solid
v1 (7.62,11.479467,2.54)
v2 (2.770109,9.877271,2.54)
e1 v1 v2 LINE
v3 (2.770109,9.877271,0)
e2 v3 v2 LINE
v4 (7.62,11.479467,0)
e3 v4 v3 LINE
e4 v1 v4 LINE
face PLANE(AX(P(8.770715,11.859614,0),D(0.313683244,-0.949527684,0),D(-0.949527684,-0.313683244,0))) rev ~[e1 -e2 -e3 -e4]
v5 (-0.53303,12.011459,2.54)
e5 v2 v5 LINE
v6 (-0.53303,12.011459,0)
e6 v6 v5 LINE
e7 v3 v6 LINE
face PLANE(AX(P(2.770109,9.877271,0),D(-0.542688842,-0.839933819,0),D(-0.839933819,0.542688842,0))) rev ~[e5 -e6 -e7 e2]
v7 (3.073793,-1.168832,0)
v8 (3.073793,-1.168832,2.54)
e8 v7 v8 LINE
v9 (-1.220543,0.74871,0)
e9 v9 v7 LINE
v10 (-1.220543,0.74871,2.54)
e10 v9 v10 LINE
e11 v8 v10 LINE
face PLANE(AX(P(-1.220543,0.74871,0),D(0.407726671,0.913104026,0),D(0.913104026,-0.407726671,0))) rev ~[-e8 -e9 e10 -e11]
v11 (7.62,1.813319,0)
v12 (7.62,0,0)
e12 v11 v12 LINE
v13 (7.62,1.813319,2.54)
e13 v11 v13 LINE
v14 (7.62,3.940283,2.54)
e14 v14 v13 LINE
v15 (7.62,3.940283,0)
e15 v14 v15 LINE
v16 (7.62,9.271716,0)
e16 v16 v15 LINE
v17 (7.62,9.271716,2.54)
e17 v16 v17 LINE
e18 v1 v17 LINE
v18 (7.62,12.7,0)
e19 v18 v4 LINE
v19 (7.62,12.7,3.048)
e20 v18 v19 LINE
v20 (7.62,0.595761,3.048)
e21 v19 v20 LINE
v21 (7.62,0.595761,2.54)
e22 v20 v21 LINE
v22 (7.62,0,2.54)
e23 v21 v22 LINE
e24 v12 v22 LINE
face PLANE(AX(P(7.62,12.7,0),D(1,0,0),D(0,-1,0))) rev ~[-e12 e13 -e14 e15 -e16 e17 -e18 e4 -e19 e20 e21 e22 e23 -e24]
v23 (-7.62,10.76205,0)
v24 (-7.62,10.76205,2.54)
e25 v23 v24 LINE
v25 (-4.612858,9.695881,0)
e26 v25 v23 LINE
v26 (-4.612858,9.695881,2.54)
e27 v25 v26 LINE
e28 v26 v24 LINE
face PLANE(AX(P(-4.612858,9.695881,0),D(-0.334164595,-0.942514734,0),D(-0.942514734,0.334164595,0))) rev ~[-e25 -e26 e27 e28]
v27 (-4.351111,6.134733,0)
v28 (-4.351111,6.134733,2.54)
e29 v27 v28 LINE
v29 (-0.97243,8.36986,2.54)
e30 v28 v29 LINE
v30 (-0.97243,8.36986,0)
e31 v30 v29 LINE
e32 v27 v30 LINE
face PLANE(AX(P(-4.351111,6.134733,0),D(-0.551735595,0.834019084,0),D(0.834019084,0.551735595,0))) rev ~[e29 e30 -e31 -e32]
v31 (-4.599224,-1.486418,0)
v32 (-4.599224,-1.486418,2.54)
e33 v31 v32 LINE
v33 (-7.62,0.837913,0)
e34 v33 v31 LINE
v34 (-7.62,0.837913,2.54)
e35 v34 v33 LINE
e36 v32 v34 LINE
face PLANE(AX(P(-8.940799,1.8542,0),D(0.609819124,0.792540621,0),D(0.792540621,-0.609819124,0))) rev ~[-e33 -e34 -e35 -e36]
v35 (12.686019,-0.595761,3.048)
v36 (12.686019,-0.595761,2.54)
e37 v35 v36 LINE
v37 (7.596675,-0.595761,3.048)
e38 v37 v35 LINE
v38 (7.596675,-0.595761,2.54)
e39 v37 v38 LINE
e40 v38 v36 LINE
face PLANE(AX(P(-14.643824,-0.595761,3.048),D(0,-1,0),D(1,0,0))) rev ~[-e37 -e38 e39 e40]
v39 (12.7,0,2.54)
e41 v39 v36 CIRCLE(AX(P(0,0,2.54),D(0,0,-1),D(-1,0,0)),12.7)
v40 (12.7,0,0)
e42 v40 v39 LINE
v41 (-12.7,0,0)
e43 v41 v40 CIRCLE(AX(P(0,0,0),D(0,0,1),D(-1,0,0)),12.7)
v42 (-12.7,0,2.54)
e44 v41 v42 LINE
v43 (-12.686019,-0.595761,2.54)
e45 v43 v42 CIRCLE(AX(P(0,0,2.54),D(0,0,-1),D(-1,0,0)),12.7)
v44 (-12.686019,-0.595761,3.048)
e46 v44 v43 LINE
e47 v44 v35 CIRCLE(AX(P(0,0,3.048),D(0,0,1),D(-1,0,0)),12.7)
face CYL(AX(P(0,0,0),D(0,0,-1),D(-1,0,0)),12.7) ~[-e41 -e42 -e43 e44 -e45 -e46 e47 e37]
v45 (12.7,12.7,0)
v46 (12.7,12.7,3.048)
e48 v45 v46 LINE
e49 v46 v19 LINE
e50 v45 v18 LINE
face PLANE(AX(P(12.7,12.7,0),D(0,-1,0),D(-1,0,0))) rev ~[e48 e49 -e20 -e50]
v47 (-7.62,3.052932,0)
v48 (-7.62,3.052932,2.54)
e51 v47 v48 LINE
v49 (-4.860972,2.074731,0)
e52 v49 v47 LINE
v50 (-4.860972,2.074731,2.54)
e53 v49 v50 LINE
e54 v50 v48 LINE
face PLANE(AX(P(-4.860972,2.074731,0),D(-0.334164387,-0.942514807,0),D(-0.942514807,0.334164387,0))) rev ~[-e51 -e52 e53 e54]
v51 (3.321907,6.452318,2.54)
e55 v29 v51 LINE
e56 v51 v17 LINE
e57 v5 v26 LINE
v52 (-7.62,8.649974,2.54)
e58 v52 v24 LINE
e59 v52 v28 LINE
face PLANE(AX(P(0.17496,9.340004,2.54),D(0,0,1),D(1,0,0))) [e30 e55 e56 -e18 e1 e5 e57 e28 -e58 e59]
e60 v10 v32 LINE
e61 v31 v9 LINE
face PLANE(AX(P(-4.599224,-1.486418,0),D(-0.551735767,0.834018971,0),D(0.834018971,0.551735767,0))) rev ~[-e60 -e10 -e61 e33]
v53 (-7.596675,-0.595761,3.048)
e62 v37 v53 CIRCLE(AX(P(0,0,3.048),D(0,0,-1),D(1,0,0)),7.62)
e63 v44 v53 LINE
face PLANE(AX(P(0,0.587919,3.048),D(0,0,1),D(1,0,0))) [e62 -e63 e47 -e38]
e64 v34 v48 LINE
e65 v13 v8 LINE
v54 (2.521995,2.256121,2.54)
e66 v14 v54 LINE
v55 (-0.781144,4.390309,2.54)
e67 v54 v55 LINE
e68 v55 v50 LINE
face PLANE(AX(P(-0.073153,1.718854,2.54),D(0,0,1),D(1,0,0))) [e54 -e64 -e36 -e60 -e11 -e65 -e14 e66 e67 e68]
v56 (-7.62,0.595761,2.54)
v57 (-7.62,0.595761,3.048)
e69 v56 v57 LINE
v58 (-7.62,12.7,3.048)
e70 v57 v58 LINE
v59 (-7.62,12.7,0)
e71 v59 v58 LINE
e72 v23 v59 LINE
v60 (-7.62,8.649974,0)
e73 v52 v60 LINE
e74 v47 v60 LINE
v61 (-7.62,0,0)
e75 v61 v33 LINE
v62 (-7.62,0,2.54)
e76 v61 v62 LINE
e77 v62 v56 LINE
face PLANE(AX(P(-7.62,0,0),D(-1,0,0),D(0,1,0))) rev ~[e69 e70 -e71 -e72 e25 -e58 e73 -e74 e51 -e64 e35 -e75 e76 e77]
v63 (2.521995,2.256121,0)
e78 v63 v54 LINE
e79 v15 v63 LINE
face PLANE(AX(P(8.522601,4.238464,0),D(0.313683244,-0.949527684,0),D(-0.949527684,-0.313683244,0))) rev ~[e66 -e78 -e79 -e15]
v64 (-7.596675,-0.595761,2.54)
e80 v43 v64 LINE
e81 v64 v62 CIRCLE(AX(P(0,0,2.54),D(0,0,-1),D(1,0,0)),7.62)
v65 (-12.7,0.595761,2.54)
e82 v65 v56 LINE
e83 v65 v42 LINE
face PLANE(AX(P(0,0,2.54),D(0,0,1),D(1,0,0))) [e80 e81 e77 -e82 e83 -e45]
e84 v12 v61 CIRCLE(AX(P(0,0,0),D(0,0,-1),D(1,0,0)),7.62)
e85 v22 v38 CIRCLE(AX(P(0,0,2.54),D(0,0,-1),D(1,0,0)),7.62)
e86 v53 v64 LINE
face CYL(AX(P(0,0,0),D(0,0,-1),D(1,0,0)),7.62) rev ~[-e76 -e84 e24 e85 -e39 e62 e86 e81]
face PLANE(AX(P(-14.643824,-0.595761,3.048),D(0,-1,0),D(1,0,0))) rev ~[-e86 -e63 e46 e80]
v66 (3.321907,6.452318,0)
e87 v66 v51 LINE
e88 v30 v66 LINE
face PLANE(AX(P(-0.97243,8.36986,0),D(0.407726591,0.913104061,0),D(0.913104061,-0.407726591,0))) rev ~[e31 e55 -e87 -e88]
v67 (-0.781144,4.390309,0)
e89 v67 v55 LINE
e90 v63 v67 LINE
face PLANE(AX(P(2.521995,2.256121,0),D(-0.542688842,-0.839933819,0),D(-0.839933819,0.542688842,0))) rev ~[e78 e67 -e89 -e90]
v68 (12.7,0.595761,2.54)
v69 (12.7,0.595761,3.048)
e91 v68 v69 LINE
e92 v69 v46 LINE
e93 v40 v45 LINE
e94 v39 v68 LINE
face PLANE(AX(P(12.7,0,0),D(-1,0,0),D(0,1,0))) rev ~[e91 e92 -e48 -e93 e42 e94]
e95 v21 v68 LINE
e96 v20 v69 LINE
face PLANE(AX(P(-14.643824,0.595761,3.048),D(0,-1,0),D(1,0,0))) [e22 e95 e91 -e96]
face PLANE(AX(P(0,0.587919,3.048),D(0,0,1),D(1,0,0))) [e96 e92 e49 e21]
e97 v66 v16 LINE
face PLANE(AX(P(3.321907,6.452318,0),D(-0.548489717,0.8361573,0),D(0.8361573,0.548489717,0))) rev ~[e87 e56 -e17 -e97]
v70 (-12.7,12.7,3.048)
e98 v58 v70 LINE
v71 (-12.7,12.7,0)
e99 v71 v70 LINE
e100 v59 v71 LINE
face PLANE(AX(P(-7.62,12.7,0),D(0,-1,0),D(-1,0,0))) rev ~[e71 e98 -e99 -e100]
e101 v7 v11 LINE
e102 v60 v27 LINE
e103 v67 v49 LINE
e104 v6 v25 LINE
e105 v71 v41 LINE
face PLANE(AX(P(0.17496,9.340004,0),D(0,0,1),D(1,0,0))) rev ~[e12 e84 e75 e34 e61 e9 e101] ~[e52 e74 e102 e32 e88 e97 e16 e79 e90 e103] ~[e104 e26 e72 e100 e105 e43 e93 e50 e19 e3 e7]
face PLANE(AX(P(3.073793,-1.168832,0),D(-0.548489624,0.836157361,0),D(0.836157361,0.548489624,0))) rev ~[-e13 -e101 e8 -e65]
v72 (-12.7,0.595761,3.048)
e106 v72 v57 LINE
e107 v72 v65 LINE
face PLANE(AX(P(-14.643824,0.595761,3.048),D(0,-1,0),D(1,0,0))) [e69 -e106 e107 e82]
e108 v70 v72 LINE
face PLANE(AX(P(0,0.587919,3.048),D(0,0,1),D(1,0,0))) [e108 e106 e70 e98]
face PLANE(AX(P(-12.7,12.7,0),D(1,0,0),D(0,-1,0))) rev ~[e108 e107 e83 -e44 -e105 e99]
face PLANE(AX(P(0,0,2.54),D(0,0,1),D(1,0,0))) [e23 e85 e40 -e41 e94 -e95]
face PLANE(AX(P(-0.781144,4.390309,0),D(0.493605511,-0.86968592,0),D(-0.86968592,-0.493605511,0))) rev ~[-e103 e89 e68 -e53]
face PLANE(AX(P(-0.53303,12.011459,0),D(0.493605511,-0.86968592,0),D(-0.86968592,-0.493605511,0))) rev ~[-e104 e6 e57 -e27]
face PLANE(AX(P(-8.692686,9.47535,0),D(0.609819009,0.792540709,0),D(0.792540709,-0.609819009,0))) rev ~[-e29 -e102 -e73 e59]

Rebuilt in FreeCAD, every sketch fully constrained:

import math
import FreeCAD as App
import Part
import Sketcher

V = App.Vector
Q = App.Units.Quantity

doc = App.newDocument("Part")
body = doc.addObject("PartDesign::Body", "Body")

# Sketch on XY plane
sketch1 = body.newObject("Sketcher::SketchObject", "Sketch")
sketch1.AttachmentSupport = (doc.getObject("XY_Plane"), [""])
sketch1.MapMode = "FlatFace"
sketch1.addGeometry(Part.LineSegment(V(13, 0, 0), V(13, 13, 0)), False)
sketch1.addGeometry(Part.LineSegment(V(13, 13, 0), V(8, 13, 0)), False)
sketch1.addGeometry(Part.LineSegment(V(8, 13, 0), V(8, 0, 0)), False)
sketch1.addGeometry(Part.ArcOfCircle(Part.Circle(V(0, 0, 0), V(0, 0, 1), 8), math.radians(180), math.radians(360)), False)
sketch1.addGeometry(Part.LineSegment(V(-8, 0, 0), V(-8, 13, 0)), False)
sketch1.addGeometry(Part.LineSegment(V(-8, 13, 0), V(-13, 13, 0)), False)
sketch1.addGeometry(Part.LineSegment(V(-13, 13, 0), V(-13, 0, 0)), False)
sketch1.addGeometry(Part.ArcOfCircle(Part.Circle(V(0, 0, 0), V(0, 0, 1), 13), math.radians(180), math.radians(360)), False)
sketch1.addConstraint(Sketcher.Constraint("Coincident", 0, 2, 1, 1))
sketch1.addConstraint(Sketcher.Constraint("Coincident", 1, 2, 2, 1))
sketch1.addConstraint(Sketcher.Constraint("Tangent", 2, 2, 3, 2))
sketch1.addConstraint(Sketcher.Constraint("Tangent", 3, 1, 4, 1))
sketch1.addConstraint(Sketcher.Constraint("Coincident", 4, 2, 5, 1))
sketch1.addConstraint(Sketcher.Constraint("Coincident", 5, 2, 6, 1))
sketch1.addConstraint(Sketcher.Constraint("Tangent", 6, 2, 7, 1))
sketch1.addConstraint(Sketcher.Constraint("Tangent", 7, 2, 0, 1))
sketch1.addConstraint(Sketcher.Constraint("Vertical", 0))
sketch1.addConstraint(Sketcher.Constraint("Horizontal", 1))
sketch1.addConstraint(Sketcher.Constraint("Vertical", 2))
sketch1.addConstraint(Sketcher.Constraint("Vertical", 4))
sketch1.addConstraint(Sketcher.Constraint("Horizontal", 5))
sketch1.addConstraint(Sketcher.Constraint("Vertical", 6))
sketch1.addConstraint(Sketcher.Constraint("Coincident", 3, 3, -1, 1))
sketch1.addConstraint(Sketcher.Constraint("Coincident", 7, 3, -1, 1))
sketch1.addConstraint(Sketcher.Constraint("Horizontal", 1, 2, 4, 2))
sketch1.addConstraint(Sketcher.Constraint("Radius", 3, Q("0.3 in")))
sketch1.addConstraint(Sketcher.Constraint("Radius", 7, Q("0.5 in")))
sketch1.addConstraint(Sketcher.Constraint("DistanceY", 0, 1, 0, 2, Q("0.5 in")))
pad1 = body.newObject("PartDesign::Pad", "Pad")
pad1.Profile = sketch1
pad1.Length = Q("0.12 in")

# Sketch on XY plane
sketch2 = body.newObject("Sketcher::SketchObject", "Sketch001")
sketch2.AttachmentSupport = (doc.getObject("XY_Plane"), [""])
sketch2.MapMode = "FlatFace"
sketch2.addGeometry(Part.LineSegment(V(-4.6, 9.7, 0), V(-8.7, 11.1, 0)), False)
sketch2.addGeometry(Part.LineSegment(V(-8.7, 11.1, 0), V(-8.7, 9.5, 0)), False)
sketch2.addGeometry(Part.LineSegment(V(-8.7, 9.5, 0), V(-4.4, 6.1, 0)), False)
sketch2.addGeometry(Part.LineSegment(V(-4.4, 6.1, 0), V(-1, 8.4, 0)), False)
sketch2.addGeometry(Part.LineSegment(V(-1, 8.4, 0), V(3.3, 6.5, 0)), False)
sketch2.addGeometry(Part.LineSegment(V(3.3, 6.5, 0), V(9.6, 10.6, 0)), False)
sketch2.addGeometry(Part.LineSegment(V(9.6, 10.6, 0), V(8.8, 11.9, 0)), False)
sketch2.addGeometry(Part.LineSegment(V(8.8, 11.9, 0), V(2.8, 9.9, 0)), False)
sketch2.addGeometry(Part.LineSegment(V(2.8, 9.9, 0), V(-0.5, 12, 0)), False)
sketch2.addGeometry(Part.LineSegment(V(-0.5, 12, 0), V(-4.6, 9.7, 0)), False)
sketch2.addGeometry(Part.LineSegment(V(-4.9, 2.1, 0), V(-8.9, 3.5, 0)), False)
sketch2.addGeometry(Part.LineSegment(V(-8.9, 3.5, 0), V(-8.9, 1.9, 0)), False)
sketch2.addGeometry(Part.LineSegment(V(-8.9, 1.9, 0), V(-4.6, -1.5, 0)), False)
sketch2.addGeometry(Part.LineSegment(V(-4.6, -1.5, 0), V(-1.2, 0.7, 0)), False)
sketch2.addGeometry(Part.LineSegment(V(-1.2, 0.7, 0), V(3.1, -1.2, 0)), False)
sketch2.addGeometry(Part.LineSegment(V(3.1, -1.2, 0), V(9.4, 3, 0)), False)
sketch2.addGeometry(Part.LineSegment(V(9.4, 3, 0), V(8.5, 4.2, 0)), False)
sketch2.addGeometry(Part.LineSegment(V(8.5, 4.2, 0), V(2.5, 2.3, 0)), False)
sketch2.addGeometry(Part.LineSegment(V(2.5, 2.3, 0), V(-0.8, 4.4, 0)), False)
sketch2.addGeometry(Part.LineSegment(V(-0.8, 4.4, 0), V(-4.9, 2.1, 0)), False)
sketch2.addConstraint(Sketcher.Constraint("Coincident", 0, 2, 1, 1))
sketch2.addConstraint(Sketcher.Constraint("Coincident", 1, 2, 2, 1))
sketch2.addConstraint(Sketcher.Constraint("Coincident", 2, 2, 3, 1))
sketch2.addConstraint(Sketcher.Constraint("Coincident", 3, 2, 4, 1))
sketch2.addConstraint(Sketcher.Constraint("Coincident", 4, 2, 5, 1))
sketch2.addConstraint(Sketcher.Constraint("Coincident", 5, 2, 6, 1))
sketch2.addConstraint(Sketcher.Constraint("Coincident", 6, 2, 7, 1))
sketch2.addConstraint(Sketcher.Constraint("Coincident", 7, 2, 8, 1))
sketch2.addConstraint(Sketcher.Constraint("Coincident", 8, 2, 9, 1))
sketch2.addConstraint(Sketcher.Constraint("Coincident", 9, 2, 0, 1))
sketch2.addConstraint(Sketcher.Constraint("Coincident", 10, 2, 11, 1))
sketch2.addConstraint(Sketcher.Constraint("Coincident", 11, 2, 12, 1))
sketch2.addConstraint(Sketcher.Constraint("Coincident", 12, 2, 13, 1))
sketch2.addConstraint(Sketcher.Constraint("Coincident", 13, 2, 14, 1))
sketch2.addConstraint(Sketcher.Constraint("Coincident", 14, 2, 15, 1))
sketch2.addConstraint(Sketcher.Constraint("Coincident", 15, 2, 16, 1))
sketch2.addConstraint(Sketcher.Constraint("Coincident", 16, 2, 17, 1))
sketch2.addConstraint(Sketcher.Constraint("Coincident", 17, 2, 18, 1))
sketch2.addConstraint(Sketcher.Constraint("Coincident", 18, 2, 19, 1))
sketch2.addConstraint(Sketcher.Constraint("Coincident", 19, 2, 10, 1))
sketch2.addConstraint(Sketcher.Constraint("Perpendicular", 5, 6))
sketch2.addConstraint(Sketcher.Constraint("Parallel", 0, 10))
sketch2.addConstraint(Sketcher.Constraint("Parallel", 1, 11))
sketch2.addConstraint(Sketcher.Constraint("Parallel", 2, 12))
sketch2.addConstraint(Sketcher.Constraint("Parallel", 3, 13))
sketch2.addConstraint(Sketcher.Constraint("Parallel", 4, 14))
sketch2.addConstraint(Sketcher.Constraint("Perpendicular", 6, 15))
sketch2.addConstraint(Sketcher.Constraint("Perpendicular", 15, 16))
sketch2.addConstraint(Sketcher.Constraint("Parallel", 7, 17))
sketch2.addConstraint(Sketcher.Constraint("Parallel", 8, 18))
sketch2.addConstraint(Sketcher.Constraint("Parallel", 9, 19))
sketch2.addConstraint(Sketcher.Constraint("Equal", 0, 10))
sketch2.addConstraint(Sketcher.Constraint("Equal", 1, 11))
sketch2.addConstraint(Sketcher.Constraint("Equal", 2, 12))
sketch2.addConstraint(Sketcher.Constraint("Equal", 3, 13))
sketch2.addConstraint(Sketcher.Constraint("Equal", 4, 14))
sketch2.addConstraint(Sketcher.Constraint("Equal", 5, 15))
sketch2.addConstraint(Sketcher.Constraint("Equal", 6, 16))
sketch2.addConstraint(Sketcher.Constraint("Equal", 7, 17))
sketch2.addConstraint(Sketcher.Constraint("DistanceX", 11, 2, -1, 1, Q("0.352 in")))
sketch2.addConstraint(Sketcher.Constraint("DistanceY", -1, 1, 11, 2, Q("0.073 in")))
sketch2.addConstraint(Sketcher.Constraint("DistanceX", 0, 2, 3, 2, Q("0.3025 in")))
sketch2.addConstraint(Sketcher.Constraint("DistanceX", 3, 2, 14, 2, Q("0.1593001 in")))
sketch2.addConstraint(Sketcher.Constraint("DistanceX", -1, 1, 16, 2, Q("8.522601 mm")))
sketch2.addConstraint(Sketcher.Constraint("DistanceY", 2, 2, 0, 2, Q("4.994602 mm")))
sketch2.addConstraint(Sketcher.Constraint("DistanceX", 3, 2, 8, 2, Q("0.4394 mm")))
sketch2.addConstraint(Sketcher.Constraint("DistanceY", 3, 2, 8, 2, Q("3.641599 mm")))
sketch2.addConstraint(Sketcher.Constraint("DistanceY", 12, 2, 9, 2, Q("11.182299 mm")))
sketch2.addConstraint(Sketcher.Constraint("DistanceX", 17, 2, 14, 2, Q("0.551798 mm")))
sketch2.addConstraint(Sketcher.Constraint("Distance", 4, Q("4.703009 mm")))
sketch2.addConstraint(Sketcher.Constraint("Distance", 7, Q("6.319569 mm")))
sketch2.addConstraint(Sketcher.Constraint("Distance", 8, Q("3.932618 mm")))
sketch2.addConstraint(Sketcher.Constraint("Distance", 9, Q("4.691151 mm")))
sketch2.addConstraint(Sketcher.Constraint("DistanceX", 0, 2, -1, 1, Q("8.65593 mm")))
sketch2.addConstraint(Sketcher.Constraint("DistanceY", -1, 1, 1, 2, Q("9.47535 mm")))
sketch2.addConstraint(Sketcher.Constraint("DistanceX", 2, 2, -1, 1, Q("4.351111 mm")))
sketch2.addConstraint(Sketcher.Constraint("DistanceY", -1, 1, 3, 2, Q("8.36986 mm")))
sketch2.addConstraint(Sketcher.Constraint("DistanceX", -1, 1, 7, 2, Q("2.770109 mm")))
sketch2.addConstraint(Sketcher.Constraint("DistanceY", -1, 1, 9, 2, Q("9.695881 mm")))
sketch2.addConstraint(Sketcher.Constraint("DistanceX", -1, 1, 15, 2, Q("9.363291 mm")))
pad2 = body.newObject("PartDesign::Pad", "Pad001")
pad2.Profile = sketch2
pad2.Length = Q("0.1 in")

# Sketch on XY plane
sketch3 = body.newObject("Sketcher::SketchObject", "Sketch002")
sketch3.AttachmentSupport = (doc.getObject("XY_Plane"), [""])
sketch3.MapMode = "FlatFace"
sketch3.AttachmentOffset = App.Placement(V(0, 0, 0.12 * 25.4), App.Rotation())
sketch3.addGeometry(Part.LineSegment(V(-14.6, 0.6, 0), V(-14.6, -0.6, 0)), False)
sketch3.addGeometry(Part.LineSegment(V(-14.6, -0.6, 0), V(14.6, -0.6, 0)), False)
sketch3.addGeometry(Part.LineSegment(V(14.6, -0.6, 0), V(14.6, 0.6, 0)), False)
sketch3.addGeometry(Part.LineSegment(V(14.6, 0.6, 0), V(-14.6, 0.6, 0)), False)
sketch3.addConstraint(Sketcher.Constraint("Coincident", 0, 2, 1, 1))
sketch3.addConstraint(Sketcher.Constraint("Coincident", 1, 2, 2, 1))
sketch3.addConstraint(Sketcher.Constraint("Coincident", 2, 2, 3, 1))
sketch3.addConstraint(Sketcher.Constraint("Coincident", 3, 2, 0, 1))
sketch3.addConstraint(Sketcher.Constraint("Vertical", 0))
sketch3.addConstraint(Sketcher.Constraint("Horizontal", 1))
sketch3.addConstraint(Sketcher.Constraint("Vertical", 2))
sketch3.addConstraint(Sketcher.Constraint("Horizontal", 3))
sketch3.addConstraint(Sketcher.Constraint("Symmetric", 0, 2, 2, 2, -1, 1))
sketch3.addConstraint(Sketcher.Constraint("DistanceX", 1, 1, 1, 2, Q("29.287648 mm")))
sketch3.addConstraint(Sketcher.Constraint("DistanceY", 0, 2, 0, 1, Q("1.191522 mm")))
pocket1 = body.newObject("PartDesign::Pocket", "Pocket")
pocket1.Profile = sketch3
pocket1.Length = Q("0.02 in")

doc.recompute()
